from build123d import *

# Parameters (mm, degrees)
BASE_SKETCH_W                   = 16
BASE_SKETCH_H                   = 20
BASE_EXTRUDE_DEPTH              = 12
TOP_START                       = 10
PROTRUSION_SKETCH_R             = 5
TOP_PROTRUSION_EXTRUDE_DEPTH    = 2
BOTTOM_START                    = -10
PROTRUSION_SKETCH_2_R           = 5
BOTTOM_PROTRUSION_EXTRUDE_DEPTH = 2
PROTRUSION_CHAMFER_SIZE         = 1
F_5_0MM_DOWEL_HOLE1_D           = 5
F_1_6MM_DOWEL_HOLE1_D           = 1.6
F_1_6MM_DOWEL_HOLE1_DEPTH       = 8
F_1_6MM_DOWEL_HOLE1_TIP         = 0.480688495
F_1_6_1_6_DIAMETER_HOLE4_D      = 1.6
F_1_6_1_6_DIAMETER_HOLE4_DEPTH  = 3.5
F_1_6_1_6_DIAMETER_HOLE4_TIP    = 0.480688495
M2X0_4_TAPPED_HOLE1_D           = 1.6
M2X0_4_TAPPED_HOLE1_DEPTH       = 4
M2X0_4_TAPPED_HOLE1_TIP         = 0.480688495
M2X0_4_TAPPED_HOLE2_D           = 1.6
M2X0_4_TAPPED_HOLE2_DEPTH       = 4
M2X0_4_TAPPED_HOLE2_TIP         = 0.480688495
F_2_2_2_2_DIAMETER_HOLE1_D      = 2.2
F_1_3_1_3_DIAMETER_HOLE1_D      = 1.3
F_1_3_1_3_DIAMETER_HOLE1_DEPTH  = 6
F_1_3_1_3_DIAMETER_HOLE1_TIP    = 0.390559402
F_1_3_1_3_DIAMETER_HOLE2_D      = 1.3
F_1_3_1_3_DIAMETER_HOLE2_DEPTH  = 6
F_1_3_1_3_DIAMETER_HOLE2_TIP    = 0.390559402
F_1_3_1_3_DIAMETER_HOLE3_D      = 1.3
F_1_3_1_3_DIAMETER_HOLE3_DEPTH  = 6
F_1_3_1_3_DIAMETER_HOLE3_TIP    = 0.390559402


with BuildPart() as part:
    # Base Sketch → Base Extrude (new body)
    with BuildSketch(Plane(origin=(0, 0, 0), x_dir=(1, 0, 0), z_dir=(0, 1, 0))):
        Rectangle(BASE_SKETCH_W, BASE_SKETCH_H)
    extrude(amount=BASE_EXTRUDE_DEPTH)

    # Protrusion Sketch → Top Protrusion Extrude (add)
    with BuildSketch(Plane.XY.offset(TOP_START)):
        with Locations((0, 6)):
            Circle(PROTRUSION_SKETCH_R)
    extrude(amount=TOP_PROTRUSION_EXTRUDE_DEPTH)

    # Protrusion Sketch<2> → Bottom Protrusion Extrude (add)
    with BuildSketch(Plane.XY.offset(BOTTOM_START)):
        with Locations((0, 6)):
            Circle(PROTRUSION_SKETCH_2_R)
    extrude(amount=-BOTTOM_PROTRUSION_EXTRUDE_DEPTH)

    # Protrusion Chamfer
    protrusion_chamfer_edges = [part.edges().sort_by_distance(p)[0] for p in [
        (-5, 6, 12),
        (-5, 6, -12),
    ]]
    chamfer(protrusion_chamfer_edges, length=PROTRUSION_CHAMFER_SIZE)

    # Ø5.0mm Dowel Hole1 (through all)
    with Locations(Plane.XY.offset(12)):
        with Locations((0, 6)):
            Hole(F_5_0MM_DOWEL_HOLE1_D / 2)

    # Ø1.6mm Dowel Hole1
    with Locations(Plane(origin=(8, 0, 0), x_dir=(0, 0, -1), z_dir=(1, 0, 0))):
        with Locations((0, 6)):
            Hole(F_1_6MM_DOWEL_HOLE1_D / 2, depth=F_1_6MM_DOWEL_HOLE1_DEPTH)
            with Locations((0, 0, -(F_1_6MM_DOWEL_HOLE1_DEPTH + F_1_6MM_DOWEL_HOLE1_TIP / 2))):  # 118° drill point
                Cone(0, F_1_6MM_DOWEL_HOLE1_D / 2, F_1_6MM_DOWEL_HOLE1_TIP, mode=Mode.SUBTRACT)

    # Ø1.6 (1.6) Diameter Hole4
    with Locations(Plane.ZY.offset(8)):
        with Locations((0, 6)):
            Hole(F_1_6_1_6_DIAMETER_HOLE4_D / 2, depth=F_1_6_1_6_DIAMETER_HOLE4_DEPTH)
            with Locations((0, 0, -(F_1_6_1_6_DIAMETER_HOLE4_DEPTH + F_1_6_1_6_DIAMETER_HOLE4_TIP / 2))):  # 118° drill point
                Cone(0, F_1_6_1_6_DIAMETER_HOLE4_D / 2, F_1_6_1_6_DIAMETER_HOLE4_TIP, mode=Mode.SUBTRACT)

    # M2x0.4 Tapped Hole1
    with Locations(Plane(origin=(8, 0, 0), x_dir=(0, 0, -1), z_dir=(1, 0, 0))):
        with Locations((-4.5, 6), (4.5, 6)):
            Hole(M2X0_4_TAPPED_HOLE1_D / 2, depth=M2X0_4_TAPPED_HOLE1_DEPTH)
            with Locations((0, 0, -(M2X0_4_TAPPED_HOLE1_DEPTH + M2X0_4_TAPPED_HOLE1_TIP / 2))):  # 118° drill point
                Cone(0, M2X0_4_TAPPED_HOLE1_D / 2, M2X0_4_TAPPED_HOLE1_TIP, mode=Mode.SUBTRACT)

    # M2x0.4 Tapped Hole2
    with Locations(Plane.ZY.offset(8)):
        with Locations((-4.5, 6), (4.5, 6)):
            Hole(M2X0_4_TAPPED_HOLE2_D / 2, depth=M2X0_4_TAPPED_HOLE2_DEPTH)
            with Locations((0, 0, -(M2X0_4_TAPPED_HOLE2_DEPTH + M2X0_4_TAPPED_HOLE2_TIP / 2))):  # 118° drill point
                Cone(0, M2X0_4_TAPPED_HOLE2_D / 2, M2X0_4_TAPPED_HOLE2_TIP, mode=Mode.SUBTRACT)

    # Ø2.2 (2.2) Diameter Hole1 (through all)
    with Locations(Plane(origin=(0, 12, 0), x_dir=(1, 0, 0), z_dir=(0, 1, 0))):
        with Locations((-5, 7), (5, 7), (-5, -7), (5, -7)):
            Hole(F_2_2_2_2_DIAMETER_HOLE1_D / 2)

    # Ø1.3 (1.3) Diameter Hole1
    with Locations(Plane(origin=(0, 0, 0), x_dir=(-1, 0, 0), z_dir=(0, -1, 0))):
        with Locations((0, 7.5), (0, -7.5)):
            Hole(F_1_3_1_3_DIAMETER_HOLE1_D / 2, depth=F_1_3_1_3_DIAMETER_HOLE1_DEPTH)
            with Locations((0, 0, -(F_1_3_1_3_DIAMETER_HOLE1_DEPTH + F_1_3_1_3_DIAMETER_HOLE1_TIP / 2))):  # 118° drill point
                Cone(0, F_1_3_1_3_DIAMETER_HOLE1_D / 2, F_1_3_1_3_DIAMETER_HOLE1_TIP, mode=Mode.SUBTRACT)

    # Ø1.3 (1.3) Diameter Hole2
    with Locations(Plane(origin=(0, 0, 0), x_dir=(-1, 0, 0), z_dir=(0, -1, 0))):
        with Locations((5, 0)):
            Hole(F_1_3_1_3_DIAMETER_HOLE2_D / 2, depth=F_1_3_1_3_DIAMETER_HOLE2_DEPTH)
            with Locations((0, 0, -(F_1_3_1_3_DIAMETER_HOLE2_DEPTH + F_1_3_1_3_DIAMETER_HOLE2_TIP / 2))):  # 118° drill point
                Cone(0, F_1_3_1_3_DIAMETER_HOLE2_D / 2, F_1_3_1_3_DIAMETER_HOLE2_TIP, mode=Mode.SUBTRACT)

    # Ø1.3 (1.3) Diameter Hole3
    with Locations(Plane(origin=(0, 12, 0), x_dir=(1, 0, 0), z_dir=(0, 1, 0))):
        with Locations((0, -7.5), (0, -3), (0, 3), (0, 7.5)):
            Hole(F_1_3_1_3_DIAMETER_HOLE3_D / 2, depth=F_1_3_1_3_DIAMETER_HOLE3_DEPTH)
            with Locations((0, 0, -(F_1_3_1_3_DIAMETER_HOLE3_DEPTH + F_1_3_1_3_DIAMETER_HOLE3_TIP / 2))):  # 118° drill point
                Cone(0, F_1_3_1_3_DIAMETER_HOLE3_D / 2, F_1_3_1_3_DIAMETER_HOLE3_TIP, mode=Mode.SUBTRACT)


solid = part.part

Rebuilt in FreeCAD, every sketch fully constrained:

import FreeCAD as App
import Part
import Sketcher
Q = App.Units.Quantity


def edges_at(feature, points):
    """Names of the edges that pass closest to the given points."""
    edges = feature.Shape.Edges
    near = lambda p: min(range(len(edges)), key=lambda i: edges[i].distToShape(Part.Vertex(*p))[0])
    return sorted({f"Edge{near(p) + 1}" for p in points})


def add_polygon(sketch, points):
    """Adds a closed chain of lines whose ends are joined by coincident constraints."""
    first, n = sketch.GeometryCount, len(points)
    for a, b in zip(points, points[1:] + points[:1]):
        sketch.addGeometry(Part.LineSegment(App.Vector(*a, 0), App.Vector(*b, 0)), False)
    for i in range(n):
        sketch.addConstraint(Sketcher.Constraint("Coincident", first + i, 2, first + (i + 1) % n, 1))

doc = App.newDocument("Part")
params = doc.addObject("Spreadsheet::Sheet", "Params")
for row, (alias, value) in enumerate([
    ("sketch1_width", "16 mm"),
    ("sketch1_height", "20 mm"),
    ("pad1_length", "12 mm"),
    ("sketch2_diameter", "10 mm"),
    ("pad2_length", "2 mm"),
    ("sketch3_diameter", "10 mm"),
    ("pad3_length", "2 mm"),
    ("chamfer_size", "1 mm"),
    ("sketch4_diameter", "5 mm"),
    ("hole_diameter", "5 mm"),
    ("sketch5_diameter", "1.6 mm"),
    ("hole2_diameter", "1.6 mm"),
    ("hole2_depth", "8 mm"),
    ("sketch6_diameter", "1.6 mm"),
    ("hole3_diameter", "1.6 mm"),
    ("hole3_depth", "3.5 mm"),
    ("sketch7_diameter", "1.6 mm"),
    ("hole4_diameter", "1.6 mm"),
    ("hole4_depth", "4 mm"),
    ("sketch8_diameter", "1.6 mm"),
    ("hole5_diameter", "1.6 mm"),
    ("hole5_depth", "4 mm"),
    ("sketch9_diameter", "2.2 mm"),
    ("hole6_diameter", "2.2 mm"),
    ("sketch10_diameter", "1.3 mm"),
    ("hole7_diameter", "1.3 mm"),
    ("hole7_depth", "6 mm"),
    ("sketch11_diameter", "1.3 mm"),
    ("hole8_diameter", "1.3 mm"),
    ("hole8_depth", "6 mm"),
    ("sketch12_diameter", "1.3 mm"),
    ("hole9_diameter", "1.3 mm"),
    ("hole9_depth", "6 mm"),
], start=1):
    params.set(f"A{row}", alias)
    params.set(f"B{row}", "=" + value)
    params.setAlias(f"B{row}", alias)

body = doc.addObject("PartDesign::Body", "Body")

# Sketch on XZ plane
sketch1 = body.newObject("Sketcher::SketchObject", "Sketch")
sketch1.AttachmentSupport = (doc.getObject("XZ_Plane"), [""])
sketch1.MapMode = "FlatFace"
add_polygon(sketch1, [(-8, -10), (-8, 10), (8, 10), (8, -10)])  # lines 0-3
sketch1.addConstraint(Sketcher.Constraint("Vertical", 0))
sketch1.addConstraint(Sketcher.Constraint("Horizontal", 1))
sketch1.addConstraint(Sketcher.Constraint("Vertical", 2))
sketch1.addConstraint(Sketcher.Constraint("Horizontal", 3))
sketch1.addConstraint(Sketcher.Constraint("Symmetric", 0, 2, 2, 2, -1, 1))
sketch1.addConstraint(Sketcher.Constraint("DistanceX", 1, 1, 1, 2, Q("16 mm")))
sketch1.addConstraint(Sketcher.Constraint("DistanceY", 0, 1, 0, 2, Q("20 mm")))
sketch1.setExpression("Constraints[9]", "Params.sketch1_width")
sketch1.setExpression("Constraints[10]", "Params.sketch1_height")
pad1 = body.newObject("PartDesign::Pad", "Pad")
pad1.Profile = sketch1
pad1.setExpression("Length", "Params.pad1_length")
pad1.Reversed = True

# Sketch on XY plane
sketch2 = body.newObject("Sketcher::SketchObject", "Sketch001")
sketch2.AttachmentSupport = (doc.getObject("XY_Plane"), [""])
sketch2.MapMode = "FlatFace"
sketch2.AttachmentOffset = App.Placement(App.Vector(0, 0, 10), App.Rotation())
sketch2.addGeometry(Part.Circle(App.Vector(0, 6, 0), App.Vector(0, 0, 1), 5), False)
sketch2.addConstraint(Sketcher.Constraint("PointOnObject", 0, 3, -2))
sketch2.addConstraint(Sketcher.Constraint("Diameter", 0, Q("10 mm")))
sketch2.addConstraint(Sketcher.Constraint("DistanceY", -1, 1, 0, 3, Q("6 mm")))
sketch2.setExpression("Constraints[1]", "Params.sketch2_diameter")
pad2 = body.newObject("PartDesign::Pad", "Pad001")
pad2.Profile = sketch2
pad2.setExpression("Length", "Params.pad2_length")

# Sketch on XY plane
sketch3 = body.newObject("Sketcher::SketchObject", "Sketch002")
sketch3.AttachmentSupport = (doc.getObject("XY_Plane"), [""])
sketch3.MapMode = "FlatFace"
sketch3.AttachmentOffset = App.Placement(App.Vector(0, 0, -10), App.Rotation())
sketch3.addGeometry(Part.Circle(App.Vector(0, 6, 0), App.Vector(0, 0, 1), 5), False)
sketch3.addConstraint(Sketcher.Constraint("PointOnObject", 0, 3, -2))
sketch3.addConstraint(Sketcher.Constraint("Diameter", 0, Q("10 mm")))
sketch3.addConstraint(Sketcher.Constraint("DistanceY", -1, 1, 0, 3, Q("6 mm")))
sketch3.setExpression("Constraints[1]", "Params.sketch3_diameter")
pad3 = body.newObject("PartDesign::Pad", "Pad002")
pad3.Profile = sketch3
pad3.setExpression("Length", "Params.pad3_length")
pad3.Reversed = True
doc.recompute()

chamfer = body.newObject("PartDesign::Chamfer", "Chamfer")
chamfer.Base = (pad3, edges_at(pad3, [(-5, 6, 12), (-5, 6, -12)]))
chamfer.setExpression("Size", "Params.chamfer_size")

# Sketch on XY plane
sketch4 = body.newObject("Sketcher::SketchObject", "Sketch003")
sketch4.AttachmentSupport = (doc.getObject("XY_Plane"), [""])
sketch4.MapMode = "FlatFace"
sketch4.AttachmentOffset = App.Placement(App.Vector(0, 0, 12), App.Rotation())
sketch4.addGeometry(Part.Circle(App.Vector(0, 6, 0), App.Vector(0, 0, 1), 2.5), False)
sketch4.addConstraint(Sketcher.Constraint("PointOnObject", 0, 3, -2))
sketch4.addConstraint(Sketcher.Constraint("Diameter", 0, Q("5 mm")))
sketch4.addConstraint(Sketcher.Constraint("DistanceY", -1, 1, 0, 3, Q("6 mm")))
sketch4.setExpression("Constraints[1]", "Params.sketch4_diameter")
doc.recompute()
hole = body.newObject("PartDesign::Hole", "Hole")
hole.Profile = sketch4
hole.ThreadType = "None"
hole.setExpression("Diameter", "Params.hole_diameter")
hole.DepthType = "ThroughAll"

# Sketch on YZ plane
sketch5 = body.newObject("Sketcher::SketchObject", "Sketch004")
sketch5.AttachmentSupport = (doc.getObject("YZ_Plane"), [""])
sketch5.MapMode = "FlatFace"
sketch5.AttachmentOffset = App.Placement(App.Vector(0, 0, 8), App.Rotation())
sketch5.addGeometry(Part.Circle(App.Vector(6, 0, 0), App.Vector(0, 0, 1), 0.8), False)
sketch5.addConstraint(Sketcher.Constraint("PointOnObject", 0, 3, -1))
sketch5.addConstraint(Sketcher.Constraint("Diameter", 0, Q("1.6 mm")))
sketch5.addConstraint(Sketcher.Constraint("DistanceX", -1, 1, 0, 3, Q("6 mm")))
sketch5.setExpression("Constraints[1]", "Params.sketch5_diameter")
doc.recompute()
hole2 = body.newObject("PartDesign::Hole", "Hole001")
hole2.Profile = sketch5
hole2.ThreadType = "None"
hole2.setExpression("Diameter", "Params.hole2_diameter")
hole2.DepthType = "Dimension"
hole2.setExpression("Depth", "Params.hole2_depth")
hole2.DrillPoint = "Angled"
hole2.DrillPointAngle = 118

# Sketch on YZ plane
sketch6 = body.newObject("Sketcher::SketchObject", "Sketch005")
sketch6.AttachmentSupport = (doc.getObject("YZ_Plane"), [""])
sketch6.MapMode = "FlatFace"
sketch6.AttachmentOffset = App.Placement(App.Vector(0, 0, -8), App.Rotation())
sketch6.addGeometry(Part.Circle(App.Vector(6, 0, 0), App.Vector(0, 0, 1), 0.8), False)
sketch6.addConstraint(Sketcher.Constraint("PointOnObject", 0, 3, -1))
sketch6.addConstraint(Sketcher.Constraint("Diameter", 0, Q("1.6 mm")))
sketch6.addConstraint(Sketcher.Constraint("DistanceX", -1, 1, 0, 3, Q("6 mm")))
sketch6.setExpression("Constraints[1]", "Params.sketch6_diameter")
doc.recompute()
hole3 = body.newObject("PartDesign::Hole", "Hole002")
hole3.Profile = sketch6
hole3.ThreadType = "None"
hole3.setExpression("Diameter", "Params.hole3_diameter")
hole3.DepthType = "Dimension"
hole3.setExpression("Depth", "Params.hole3_depth")
hole3.DrillPoint = "Angled"
hole3.DrillPointAngle = 118
hole3.Reversed = True

# Sketch on YZ plane
sketch7 = body.newObject("Sketcher::SketchObject", "Sketch006")
sketch7.AttachmentSupport = (doc.getObject("YZ_Plane"), [""])
sketch7.MapMode = "FlatFace"
sketch7.AttachmentOffset = App.Placement(App.Vector(0, 0, 8), App.Rotation())
sketch7.addGeometry(Part.Circle(App.Vector(6, 4.5, 0), App.Vector(0, 0, 1), 0.8), False)
sketch7.addGeometry(Part.Circle(App.Vector(6, -4.5, 0), App.Vector(0, 0, 1), 0.8), False)
sketch7.addConstraint(Sketcher.Constraint("Equal", 0, 1))
sketch7.addConstraint(Sketcher.Constraint("Symmetric", 0, 3, 1, 3, -1))
sketch7.addConstraint(Sketcher.Constraint("Diameter", 0, Q("1.6 mm")))
sketch7.addConstraint(Sketcher.Constraint("DistanceX", -1, 1, 0, 3, Q("6 mm")))
sketch7.addConstraint(Sketcher.Constraint("DistanceY", 1, 3, 0, 3, Q("9 mm")))
sketch7.setExpression("Constraints[2]", "Params.sketch7_diameter")
doc.recompute()
hole4 = body.newObject("PartDesign::Hole", "Hole003")
hole4.Profile = sketch7
hole4.ThreadType = "None"
hole4.setExpression("Diameter", "Params.hole4_diameter")
hole4.DepthType = "Dimension"
hole4.setExpression("Depth", "Params.hole4_depth")
hole4.DrillPoint = "Angled"
hole4.DrillPointAngle = 118

# Sketch on YZ plane
sketch8 = body.newObject("Sketcher::SketchObject", "Sketch007")
sketch8.AttachmentSupport = (doc.getObject("YZ_Plane"), [""])
sketch8.MapMode = "FlatFace"
sketch8.AttachmentOffset = App.Placement(App.Vector(0, 0, -8), App.Rotation())
sketch8.addGeometry(Part.Circle(App.Vector(6, -4.5, 0), App.Vector(0, 0, 1), 0.8), False)
sketch8.addGeometry(Part.Circle(App.Vector(6, 4.5, 0), App.Vector(0, 0, 1), 0.8), False)
sketch8.addConstraint(Sketcher.Constraint("Equal", 0, 1))
sketch8.addConstraint(Sketcher.Constraint("Symmetric", 0, 3, 1, 3, -1))
sketch8.addConstraint(Sketcher.Constraint("Diameter", 0, Q("1.6 mm")))
sketch8.addConstraint(Sketcher.Constraint("DistanceX", -1, 1, 0, 3, Q("6 mm")))
sketch8.addConstraint(Sketcher.Constraint("DistanceY", 0, 3, 1, 3, Q("9 mm")))
sketch8.setExpression("Constraints[2]", "Params.sketch8_diameter")
doc.recompute()
hole5 = body.newObject("PartDesign::Hole", "Hole004")
hole5.Profile = sketch8
hole5.ThreadType = "None"
hole5.setExpression("Diameter", "Params.hole5_diameter")
hole5.DepthType = "Dimension"
hole5.setExpression("Depth", "Params.hole5_depth")
hole5.DrillPoint = "Angled"
hole5.DrillPointAngle = 118
hole5.Reversed = True

# Sketch on XZ plane
sketch9 = body.newObject("Sketcher::SketchObject", "Sketch008")
sketch9.AttachmentSupport = (doc.getObject("XZ_Plane"), [""])
sketch9.MapMode = "FlatFace"
sketch9.AttachmentOffset = App.Placement(App.Vector(0, 0, -12), App.Rotation())
sketch9.addGeometry(Part.Circle(App.Vector(-5, -7, 0), App.Vector(0, 0, 1), 1.1), False)
sketch9.addGeometry(Part.Circle(App.Vector(5, -7, 0), App.Vector(0, 0, 1), 1.1), False)
sketch9.addGeometry(Part.Circle(App.Vector(-5, 7, 0), App.Vector(0, 0, 1), 1.1), False)
sketch9.addGeometry(Part.Circle(App.Vector(5, 7, 0), App.Vector(0, 0, 1), 1.1), False)
sketch9.addConstraint(Sketcher.Constraint("Equal", 0, 1))
sketch9.addConstraint(Sketcher.Constraint("Equal", 1, 2))
sketch9.addConstraint(Sketcher.Constraint("Equal", 2, 3))
sketch9.addConstraint(Sketcher.Constraint("Symmetric", 1, 3, 2, 3, -1, 1))
sketch9.addConstraint(Sketcher.Constraint("Symmetric", 0, 3, 3, 3, -1, 1))
sketch9.addConstraint(Sketcher.Constraint("Symmetric", 0, 3, 1, 3, -2))
sketch9.addConstraint(Sketcher.Constraint("Diameter", 0, Q("2.2 mm")))
sketch9.addConstraint(Sketcher.Constraint("DistanceX", 0, 3, -1, 1, Q("5 mm")))
sketch9.addConstraint(Sketcher.Constraint("DistanceY", 0, 3, -1, 1, Q("7 mm")))
sketch9.setExpression("Constraints[6]", "Params.sketch9_diameter")
doc.recompute()
hole6 = body.newObject("PartDesign::Hole", "Hole005")
hole6.Profile = sketch9
hole6.ThreadType = "None"
hole6.setExpression("Diameter", "Params.hole6_diameter")
hole6.DepthType = "ThroughAll"
hole6.Reversed = True

# Sketch on XZ plane
sketch10 = body.newObject("Sketcher::SketchObject", "Sketch009")
sketch10.AttachmentSupport = (doc.getObject("XZ_Plane"), [""])
sketch10.MapMode = "FlatFace"
sketch10.addGeometry(Part.Circle(App.Vector(0, -7.5, 0), App.Vector(0, 0, 1), 0.65), False)
sketch10.addGeometry(Part.Circle(App.Vector(0, 7.5, 0), App.Vector(0, 0, 1), 0.65), False)
sketch10.addConstraint(Sketcher.Constraint("Equal", 0, 1))
sketch10.addConstraint(Sketcher.Constraint("Symmetric", 0, 3, 1, 3, -1, 1))
sketch10.addConstraint(Sketcher.Constraint("PointOnObject", 0, 3, -2))
sketch10.addConstraint(Sketcher.Constraint("Diameter", 0, Q("1.3 mm")))
sketch10.addConstraint(Sketcher.Constraint("DistanceY", 0, 3, 1, 3, Q("15 mm")))
sketch10.setExpression("Constraints[3]", "Params.sketch10_diameter")
doc.recompute()
hole7 = body.newObject("PartDesign::Hole", "Hole006")
hole7.Profile = sketch10
hole7.ThreadType = "None"
hole7.setExpression("Diameter", "Params.hole7_diameter")
hole7.DepthType = "Dimension"
hole7.setExpression("Depth", "Params.hole7_depth")
hole7.DrillPoint = "Angled"
hole7.DrillPointAngle = 118

# Sketch on XZ plane
sketch11 = body.newObject("Sketcher::SketchObject", "Sketch010")
sketch11.AttachmentSupport = (doc.getObject("XZ_Plane"), [""])
sketch11.MapMode = "FlatFace"
sketch11.addGeometry(Part.Circle(App.Vector(-5, 0, 0), App.Vector(0, 0, 1), 0.65), False)
sketch11.addConstraint(Sketcher.Constraint("PointOnObject", 0, 3, -1))
sketch11.addConstraint(Sketcher.Constraint("Diameter", 0, Q("1.3 mm")))
sketch11.addConstraint(Sketcher.Constraint("DistanceX", 0, 3, -1, 1, Q("5 mm")))
sketch11.setExpression("Constraints[1]", "Params.sketch11_diameter")
doc.recompute()
hole8 = body.newObject("PartDesign::Hole", "Hole007")
hole8.Profile = sketch11
hole8.ThreadType = "None"
hole8.setExpression("Diameter", "Params.hole8_diameter")
hole8.DepthType = "Dimension"
hole8.setExpression("Depth", "Params.hole8_depth")
hole8.DrillPoint = "Angled"
hole8.DrillPointAngle = 118

# Sketch on XZ plane
sketch12 = body.newObject("Sketcher::SketchObject", "Sketch011")
sketch12.AttachmentSupport = (doc.getObject("XZ_Plane"), [""])
sketch12.MapMode = "FlatFace"
sketch12.AttachmentOffset = App.Placement(App.Vector(0, 0, -12), App.Rotation())
sketch12.addGeometry(Part.Circle(App.Vector(0, 7.5, 0), App.Vector(0, 0, 1), 0.65), False)
sketch12.addGeometry(Part.Circle(App.Vector(0, 3, 0), App.Vector(0, 0, 1), 0.65), False)
sketch12.addGeometry(Part.Circle(App.Vector(0, -3, 0), App.Vector(0, 0, 1), 0.65), False)
sketch12.addGeometry(Part.Circle(App.Vector(0, -7.5, 0), App.Vector(0, 0, 1), 0.65), False)
sketch12.addConstraint(Sketcher.Constraint("Equal", 0, 1))
sketch12.addConstraint(Sketcher.Constraint("Equal", 1, 2))
sketch12.addConstraint(Sketcher.Constraint("Equal", 2, 3))
sketch12.addConstraint(Sketcher.Constraint("Symmetric", 1, 3, 2, 3, -1, 1))
sketch12.addConstraint(Sketcher.Constraint("Symmetric", 0, 3, 3, 3, -1, 1))
sketch12.addConstraint(Sketcher.Constraint("PointOnObject", 0, 3, -2))
sketch12.addConstraint(Sketcher.Constraint("PointOnObject", 1, 3, -2))
sketch12.addConstraint(Sketcher.Constraint("Diameter", 0, Q("1.3 mm")))
sketch12.addConstraint(Sketcher.Constraint("DistanceY", -1, 1, 1, 3, Q("3 mm")))
sketch12.addConstraint(Sketcher.Constraint("DistanceY", 3, 3, 0, 3, Q("15 mm")))
sketch12.setExpression("Constraints[7]", "Params.sketch12_diameter")
doc.recompute()
hole9 = body.newObject("PartDesign::Hole", "Hole008")
hole9.Profile = sketch12
hole9.ThreadType = "None"
hole9.setExpression("Diameter", "Params.hole9_diameter")
hole9.DepthType = "Dimension"
hole9.setExpression("Depth", "Params.hole9_depth")
hole9.DrillPoint = "Angled"
hole9.DrillPointAngle = 118
hole9.Reversed = True

doc.recompute()
